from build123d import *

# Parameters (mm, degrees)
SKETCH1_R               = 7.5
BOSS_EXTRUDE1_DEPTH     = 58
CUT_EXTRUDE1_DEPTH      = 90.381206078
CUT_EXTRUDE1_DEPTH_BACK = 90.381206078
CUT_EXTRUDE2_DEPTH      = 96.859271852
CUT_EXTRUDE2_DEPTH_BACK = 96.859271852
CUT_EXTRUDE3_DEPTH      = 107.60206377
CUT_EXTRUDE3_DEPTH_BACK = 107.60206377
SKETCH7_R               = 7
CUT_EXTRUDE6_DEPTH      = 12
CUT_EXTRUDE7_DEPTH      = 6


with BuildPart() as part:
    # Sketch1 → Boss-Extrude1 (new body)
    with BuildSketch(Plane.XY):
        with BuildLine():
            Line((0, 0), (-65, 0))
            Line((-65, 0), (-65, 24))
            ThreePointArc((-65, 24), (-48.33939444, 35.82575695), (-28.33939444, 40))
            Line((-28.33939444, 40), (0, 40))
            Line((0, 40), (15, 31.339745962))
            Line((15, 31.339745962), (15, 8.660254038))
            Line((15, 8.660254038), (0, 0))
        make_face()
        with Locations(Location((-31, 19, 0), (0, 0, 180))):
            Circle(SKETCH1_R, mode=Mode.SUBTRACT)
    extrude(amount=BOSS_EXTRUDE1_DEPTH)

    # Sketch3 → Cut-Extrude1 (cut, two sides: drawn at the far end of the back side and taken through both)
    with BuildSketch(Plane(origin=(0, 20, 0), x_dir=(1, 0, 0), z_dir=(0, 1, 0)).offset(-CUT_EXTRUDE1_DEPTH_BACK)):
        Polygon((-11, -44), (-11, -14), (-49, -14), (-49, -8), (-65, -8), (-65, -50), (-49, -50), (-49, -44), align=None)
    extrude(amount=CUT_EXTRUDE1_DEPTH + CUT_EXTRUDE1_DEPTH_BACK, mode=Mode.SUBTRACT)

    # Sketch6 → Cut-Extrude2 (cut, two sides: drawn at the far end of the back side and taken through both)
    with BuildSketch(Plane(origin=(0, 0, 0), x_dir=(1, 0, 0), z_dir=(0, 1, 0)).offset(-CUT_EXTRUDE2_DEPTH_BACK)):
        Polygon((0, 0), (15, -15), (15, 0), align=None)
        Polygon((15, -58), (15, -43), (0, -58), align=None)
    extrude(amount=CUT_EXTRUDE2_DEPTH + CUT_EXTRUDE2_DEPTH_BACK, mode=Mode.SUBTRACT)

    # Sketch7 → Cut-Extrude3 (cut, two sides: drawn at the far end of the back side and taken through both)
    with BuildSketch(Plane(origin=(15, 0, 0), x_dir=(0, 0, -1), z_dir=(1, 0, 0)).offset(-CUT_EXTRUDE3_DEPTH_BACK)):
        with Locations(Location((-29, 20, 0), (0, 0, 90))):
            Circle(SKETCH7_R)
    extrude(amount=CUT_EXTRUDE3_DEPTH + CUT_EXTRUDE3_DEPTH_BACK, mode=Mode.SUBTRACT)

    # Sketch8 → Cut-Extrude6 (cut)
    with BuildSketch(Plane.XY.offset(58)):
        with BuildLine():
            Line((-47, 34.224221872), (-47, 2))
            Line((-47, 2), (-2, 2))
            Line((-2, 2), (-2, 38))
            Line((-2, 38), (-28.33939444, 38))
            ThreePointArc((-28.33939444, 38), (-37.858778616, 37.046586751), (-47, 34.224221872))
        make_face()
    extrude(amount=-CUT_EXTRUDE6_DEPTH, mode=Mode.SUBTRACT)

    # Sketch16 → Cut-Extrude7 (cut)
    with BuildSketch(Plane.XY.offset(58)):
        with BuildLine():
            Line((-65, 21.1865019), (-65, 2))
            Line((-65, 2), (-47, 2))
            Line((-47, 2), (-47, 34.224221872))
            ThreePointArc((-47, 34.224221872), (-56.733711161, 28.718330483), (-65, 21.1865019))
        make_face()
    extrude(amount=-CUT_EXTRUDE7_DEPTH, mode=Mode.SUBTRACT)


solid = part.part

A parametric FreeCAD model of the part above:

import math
import FreeCAD as App
import Part
import Sketcher
Q = App.Units.Quantity

doc = App.newDocument("Part")
body = doc.addObject("PartDesign::Body", "Body")

# Sketch on XY plane
sketch1 = body.newObject("Sketcher::SketchObject", "Sketch")
sketch1.AttachmentSupport = (doc.getObject("XY_Plane"), [""])
sketch1.MapMode = "FlatFace"
sketch1.addGeometry([
    Part.LineSegment(App.Vector(-65, 0, 0), App.Vector(0, 0, 0)),  # 0
    Part.LineSegment(App.Vector(0, 0, 0), App.Vector(15, 8.660254, 0)),  # 1
    Part.LineSegment(App.Vector(15, 8.660254, 0), App.Vector(15, 31.339746, 0)),  # 2
    Part.LineSegment(App.Vector(15, 31.339746, 0), App.Vector(0, 40, 0)),  # 3
    Part.LineSegment(App.Vector(0, 40, 0), App.Vector(-28.339394, 40, 0)),  # 4
    Part.ArcOfCircle(Part.Circle(App.Vector(-28.339394, -10, 0), App.Vector(0, 0, 1), 50), math.radians(90), math.radians(137.156357)),  # 5
    Part.LineSegment(App.Vector(-65, 24, 0), App.Vector(-65, 0, 0)),  # 6
    Part.Circle(App.Vector(-31, 19, 0), App.Vector(0, 0, 1), 7.5),  # 7
], False)
sketch1.addConstraint([
    Sketcher.Constraint("Coincident", 0, 2, 1, 1),
    Sketcher.Constraint("Coincident", 1, 2, 2, 1),
    Sketcher.Constraint("Coincident", 2, 2, 3, 1),
    Sketcher.Constraint("Coincident", 3, 2, 4, 1),
    Sketcher.Constraint("Tangent", 4, 2, 5, 1),
    Sketcher.Constraint("Coincident", 5, 2, 6, 1),
    Sketcher.Constraint("Coincident", 6, 2, 0, 1),
    Sketcher.Constraint("Horizontal", 0),
    Sketcher.Constraint("Vertical", 2),
    Sketcher.Constraint("Horizontal", 4),
    Sketcher.Constraint("Vertical", 6),
    Sketcher.Constraint("Coincident", 0, 2, -1, 1),
    Sketcher.Constraint("PointOnObject", 3, 2, -2),
    Sketcher.Constraint("Equal", 1, 3),
    Sketcher.Constraint("Diameter", 7, 15.0),
    Sketcher.Constraint("Radius", 5, 50.0),
    Sketcher.Constraint("DistanceX", 0, 1, 0, 2, 65.0),
    Sketcher.Constraint("DistanceY", 6, 2, 6, 1, 24.0),
    Sketcher.Constraint("Angle", 1, Q("30 deg")),
    Sketcher.Constraint("DistanceY", 5, 3, -1, 1, 10.0),
    Sketcher.Constraint("DistanceX", 7, 3, -1, 1, 31.0),
    Sketcher.Constraint("DistanceY", -1, 1, 7, 3, 19.0),
    Sketcher.Constraint("DistanceX", -1, 1, 1, 2, 15.0),
])
pad1 = body.newObject("PartDesign::Pad", "Pad")
pad1.Profile = sketch1
pad1.Length = 58

# Sketch on XZ plane
sketch2 = body.newObject("Sketcher::SketchObject", "Sketch001")
sketch2.AttachmentSupport = (doc.getObject("XZ_Plane"), [""])
sketch2.MapMode = "FlatFace"
sketch2.AttachmentOffset = App.Placement(App.Vector(0, 0, -20), App.Rotation())
sketch2.addGeometry([
    Part.LineSegment(App.Vector(-11, 44, 0), App.Vector(-11, 14, 0)),  # 0
    Part.LineSegment(App.Vector(-11, 14, 0), App.Vector(-49, 14, 0)),  # 1
    Part.LineSegment(App.Vector(-49, 14, 0), App.Vector(-49, 8, 0)),  # 2
    Part.LineSegment(App.Vector(-49, 8, 0), App.Vector(-65, 8, 0)),  # 3
    Part.LineSegment(App.Vector(-65, 8, 0), App.Vector(-65, 50, 0)),  # 4
    Part.LineSegment(App.Vector(-65, 50, 0), App.Vector(-49, 50, 0)),  # 5
    Part.LineSegment(App.Vector(-49, 50, 0), App.Vector(-49, 44, 0)),  # 6
    Part.LineSegment(App.Vector(-49, 44, 0), App.Vector(-11, 44, 0)),  # 7
], False)
sketch2.addConstraint([
    Sketcher.Constraint("Coincident", 0, 2, 1, 1),
    Sketcher.Constraint("Coincident", 1, 2, 2, 1),
    Sketcher.Constraint("Coincident", 2, 2, 3, 1),
    Sketcher.Constraint("Coincident", 3, 2, 4, 1),
    Sketcher.Constraint("Coincident", 4, 2, 5, 1),
    Sketcher.Constraint("Coincident", 5, 2, 6, 1),
    Sketcher.Constraint("Coincident", 6, 2, 7, 1),
    Sketcher.Constraint("Coincident", 7, 2, 0, 1),
    Sketcher.Constraint("Vertical", 0),
    Sketcher.Constraint("Horizontal", 1),
    Sketcher.Constraint("Vertical", 2),
    Sketcher.Constraint("Horizontal", 3),
    Sketcher.Constraint("Vertical", 4),
    Sketcher.Constraint("Horizontal", 5),
    Sketcher.Constraint("Vertical", 6),
    Sketcher.Constraint("Horizontal", 7),
    Sketcher.Constraint("Vertical", 2, 2, 5, 2),
    Sketcher.Constraint("Equal", 2, 6),
    Sketcher.Constraint("DistanceX", 1, 2, 1, 1, 38.0),
    Sketcher.Constraint("DistanceX", 3, 2, 3, 1, 16.0),
    Sketcher.Constraint("DistanceY", 0, 2, 0, 1, 30.0),
    Sketcher.Constraint("DistanceY", 2, 2, 2, 1, 6.0),
    Sketcher.Constraint("DistanceX", 0, 2, -1, 1, 11.0),
    Sketcher.Constraint("DistanceY", -1, 1, 0, 2, 14.0),
])
pocket1 = body.newObject("PartDesign::Pocket", "Pocket")
pocket1.Profile = sketch2
pocket1.Type = "ThroughAll"
pocket1.Midplane = True

# Sketch on XZ plane
sketch3 = body.newObject("Sketcher::SketchObject", "Sketch002")
sketch3.AttachmentSupport = (doc.getObject("XZ_Plane"), [""])
sketch3.MapMode = "FlatFace"
sketch3.addGeometry([
    Part.LineSegment(App.Vector(0, 0, 0), App.Vector(15, 15, 0)),  # 0
    Part.LineSegment(App.Vector(15, 15, 0), App.Vector(15, 0, 0)),  # 1
    Part.LineSegment(App.Vector(15, 0, 0), App.Vector(0, 0, 0)),  # 2
    Part.LineSegment(App.Vector(15, 58, 0), App.Vector(15, 43, 0)),  # 3
    Part.LineSegment(App.Vector(15, 43, 0), App.Vector(0, 58, 0)),  # 4
    Part.LineSegment(App.Vector(0, 58, 0), App.Vector(15, 58, 0)),  # 5
], False)
sketch3.addConstraint([
    Sketcher.Constraint("Coincident", 0, 2, 1, 1),
    Sketcher.Constraint("Coincident", 1, 2, 2, 1),
    Sketcher.Constraint("Coincident", 2, 2, 0, 1),
    Sketcher.Constraint("Coincident", 3, 2, 4, 1),
    Sketcher.Constraint("Coincident", 4, 2, 5, 1),
    Sketcher.Constraint("Coincident", 5, 2, 3, 1),
    Sketcher.Constraint("Vertical", 1),
    Sketcher.Constraint("Horizontal", 2),
    Sketcher.Constraint("Vertical", 3),
    Sketcher.Constraint("Horizontal", 5),
    Sketcher.Constraint("Coincident", 2, 2, -1, 1),
    Sketcher.Constraint("PointOnObject", 4, 2, -2),
    Sketcher.Constraint("Perpendicular", 0, 4),
    Sketcher.Constraint("Vertical", 1, 2, 3, 2),
    Sketcher.Constraint("Equal", 5, 1),
    Sketcher.Constraint("DistanceX", 2, 2, 2, 1, 15.0),
    Sketcher.Constraint("DistanceY", -1, 1, 3, 2, 43.0),
])
pocket2 = body.newObject("PartDesign::Pocket", "Pocket001")
pocket2.Profile = sketch3
pocket2.Type = "ThroughAll"
pocket2.Midplane = True

# Sketch on YZ plane
sketch4 = body.newObject("Sketcher::SketchObject", "Sketch003")
sketch4.AttachmentSupport = (doc.getObject("YZ_Plane"), [""])
sketch4.MapMode = "FlatFace"
sketch4.AttachmentOffset = App.Placement(App.Vector(0, 0, 15), App.Rotation())
sketch4.addGeometry(Part.Circle(App.Vector(20, 29, 0), App.Vector(0, 0, 1), 7), False)
sketch4.addConstraint([
    Sketcher.Constraint("Diameter", 0, 14.0),
    Sketcher.Constraint("DistanceX", -1, 1, 0, 3, 20.0),
    Sketcher.Constraint("DistanceY", -1, 1, 0, 3, 29.0),
])
pocket3 = body.newObject("PartDesign::Pocket", "Pocket002")
pocket3.Profile = sketch4
pocket3.Type = "ThroughAll"
pocket3.Midplane = True

# Sketch on XY plane
sketch5 = body.newObject("Sketcher::SketchObject", "Sketch004")
sketch5.AttachmentSupport = (doc.getObject("XY_Plane"), [""])
sketch5.MapMode = "FlatFace"
sketch5.AttachmentOffset = App.Placement(App.Vector(0, 0, 58), App.Rotation())
sketch5.addGeometry([
    Part.LineSegment(App.Vector(-47, 34.224222, 0), App.Vector(-47, 2, 0)),  # 0
    Part.LineSegment(App.Vector(-47, 2, 0), App.Vector(-2, 2, 0)),  # 1
    Part.LineSegment(App.Vector(-2, 2, 0), App.Vector(-2, 38, 0)),  # 2
    Part.LineSegment(App.Vector(-2, 38, 0), App.Vector(-28.339394, 38, 0)),  # 3
    Part.ArcOfCircle(Part.Circle(App.Vector(-28.339394, -10, 0), App.Vector(0, 0, 1), 48), math.radians(90), math.radians(112.877528)),  # 4
], False)
sketch5.addConstraint([
    Sketcher.Constraint("Coincident", 0, 2, 1, 1),
    Sketcher.Constraint("Coincident", 1, 2, 2, 1),
    Sketcher.Constraint("Coincident", 2, 2, 3, 1),
    Sketcher.Constraint("Tangent", 3, 2, 4, 1),
    Sketcher.Constraint("Coincident", 4, 2, 0, 1),
    Sketcher.Constraint("Vertical", 0),
    Sketcher.Constraint("Horizontal", 1),
    Sketcher.Constraint("Vertical", 2),
    Sketcher.Constraint("Horizontal", 3),
    Sketcher.Constraint("Radius", 4, 48.0),
    Sketcher.Constraint("DistanceX", 1, 1, 1, 2, 45.0),
    Sketcher.Constraint("DistanceY", 2, 1, 2, 2, 36.0),
    Sketcher.Constraint("DistanceY", 4, 3, -1, 1, 10.0),
    Sketcher.Constraint("DistanceX", 0, 2, -1, 1, 47.0),
    Sketcher.Constraint("DistanceY", 0, 2, 0, 1, 32.224222),
])
pocket4 = body.newObject("PartDesign::Pocket", "Pocket003")
pocket4.Profile = sketch5
pocket4.Length = 12

# Sketch on XY plane
sketch6 = body.newObject("Sketcher::SketchObject", "Sketch005")
sketch6.AttachmentSupport = (doc.getObject("XY_Plane"), [""])
sketch6.MapMode = "FlatFace"
sketch6.AttachmentOffset = App.Placement(App.Vector(0, 0, 58), App.Rotation())
sketch6.addGeometry([
    Part.LineSegment(App.Vector(-65, 21.186502, 0), App.Vector(-65, 2, 0)),
    Part.LineSegment(App.Vector(-65, 2, 0), App.Vector(-47, 2, 0)),
    Part.LineSegment(App.Vector(-47, 2, 0), App.Vector(-47, 34.224222, 0)),
    Part.ArcOfCircle(Part.Circle(App.Vector(-27.407547, -11.76965, 0), App.Vector(0, 0, 1), 49.993004), math.radians(113.073017), math.radians(138.759947)),
], False)
sketch6.addConstraint([
    Sketcher.Constraint("Coincident", 0, 2, 1, 1),
    Sketcher.Constraint("Coincident", 1, 2, 2, 1),
    Sketcher.Constraint("Coincident", 2, 2, 3, 1),
    Sketcher.Constraint("Coincident", 3, 2, 0, 1),
    Sketcher.Constraint("Vertical", 0),
    Sketcher.Constraint("Horizontal", 1),
    Sketcher.Constraint("Vertical", 2),
    Sketcher.Constraint("DistanceX", 1, 1, 1, 2, 18.0),
    Sketcher.Constraint("DistanceX", 0, 2, -1, 1, 65.0),
    Sketcher.Constraint("DistanceY", -1, 1, 0, 2, 2.0),
    Sketcher.Constraint("DistanceY", 0, 2, 0, 1, 19.186502),
    Sketcher.Constraint("Radius", 3, 49.993004),
    Sketcher.Constraint("DistanceY", 2, 1, 2, 2, 32.224222),
])
pocket5 = body.newObject("PartDesign::Pocket", "Pocket004")
pocket5.Profile = sketch6
pocket5.Length = 6

doc.recompute()
